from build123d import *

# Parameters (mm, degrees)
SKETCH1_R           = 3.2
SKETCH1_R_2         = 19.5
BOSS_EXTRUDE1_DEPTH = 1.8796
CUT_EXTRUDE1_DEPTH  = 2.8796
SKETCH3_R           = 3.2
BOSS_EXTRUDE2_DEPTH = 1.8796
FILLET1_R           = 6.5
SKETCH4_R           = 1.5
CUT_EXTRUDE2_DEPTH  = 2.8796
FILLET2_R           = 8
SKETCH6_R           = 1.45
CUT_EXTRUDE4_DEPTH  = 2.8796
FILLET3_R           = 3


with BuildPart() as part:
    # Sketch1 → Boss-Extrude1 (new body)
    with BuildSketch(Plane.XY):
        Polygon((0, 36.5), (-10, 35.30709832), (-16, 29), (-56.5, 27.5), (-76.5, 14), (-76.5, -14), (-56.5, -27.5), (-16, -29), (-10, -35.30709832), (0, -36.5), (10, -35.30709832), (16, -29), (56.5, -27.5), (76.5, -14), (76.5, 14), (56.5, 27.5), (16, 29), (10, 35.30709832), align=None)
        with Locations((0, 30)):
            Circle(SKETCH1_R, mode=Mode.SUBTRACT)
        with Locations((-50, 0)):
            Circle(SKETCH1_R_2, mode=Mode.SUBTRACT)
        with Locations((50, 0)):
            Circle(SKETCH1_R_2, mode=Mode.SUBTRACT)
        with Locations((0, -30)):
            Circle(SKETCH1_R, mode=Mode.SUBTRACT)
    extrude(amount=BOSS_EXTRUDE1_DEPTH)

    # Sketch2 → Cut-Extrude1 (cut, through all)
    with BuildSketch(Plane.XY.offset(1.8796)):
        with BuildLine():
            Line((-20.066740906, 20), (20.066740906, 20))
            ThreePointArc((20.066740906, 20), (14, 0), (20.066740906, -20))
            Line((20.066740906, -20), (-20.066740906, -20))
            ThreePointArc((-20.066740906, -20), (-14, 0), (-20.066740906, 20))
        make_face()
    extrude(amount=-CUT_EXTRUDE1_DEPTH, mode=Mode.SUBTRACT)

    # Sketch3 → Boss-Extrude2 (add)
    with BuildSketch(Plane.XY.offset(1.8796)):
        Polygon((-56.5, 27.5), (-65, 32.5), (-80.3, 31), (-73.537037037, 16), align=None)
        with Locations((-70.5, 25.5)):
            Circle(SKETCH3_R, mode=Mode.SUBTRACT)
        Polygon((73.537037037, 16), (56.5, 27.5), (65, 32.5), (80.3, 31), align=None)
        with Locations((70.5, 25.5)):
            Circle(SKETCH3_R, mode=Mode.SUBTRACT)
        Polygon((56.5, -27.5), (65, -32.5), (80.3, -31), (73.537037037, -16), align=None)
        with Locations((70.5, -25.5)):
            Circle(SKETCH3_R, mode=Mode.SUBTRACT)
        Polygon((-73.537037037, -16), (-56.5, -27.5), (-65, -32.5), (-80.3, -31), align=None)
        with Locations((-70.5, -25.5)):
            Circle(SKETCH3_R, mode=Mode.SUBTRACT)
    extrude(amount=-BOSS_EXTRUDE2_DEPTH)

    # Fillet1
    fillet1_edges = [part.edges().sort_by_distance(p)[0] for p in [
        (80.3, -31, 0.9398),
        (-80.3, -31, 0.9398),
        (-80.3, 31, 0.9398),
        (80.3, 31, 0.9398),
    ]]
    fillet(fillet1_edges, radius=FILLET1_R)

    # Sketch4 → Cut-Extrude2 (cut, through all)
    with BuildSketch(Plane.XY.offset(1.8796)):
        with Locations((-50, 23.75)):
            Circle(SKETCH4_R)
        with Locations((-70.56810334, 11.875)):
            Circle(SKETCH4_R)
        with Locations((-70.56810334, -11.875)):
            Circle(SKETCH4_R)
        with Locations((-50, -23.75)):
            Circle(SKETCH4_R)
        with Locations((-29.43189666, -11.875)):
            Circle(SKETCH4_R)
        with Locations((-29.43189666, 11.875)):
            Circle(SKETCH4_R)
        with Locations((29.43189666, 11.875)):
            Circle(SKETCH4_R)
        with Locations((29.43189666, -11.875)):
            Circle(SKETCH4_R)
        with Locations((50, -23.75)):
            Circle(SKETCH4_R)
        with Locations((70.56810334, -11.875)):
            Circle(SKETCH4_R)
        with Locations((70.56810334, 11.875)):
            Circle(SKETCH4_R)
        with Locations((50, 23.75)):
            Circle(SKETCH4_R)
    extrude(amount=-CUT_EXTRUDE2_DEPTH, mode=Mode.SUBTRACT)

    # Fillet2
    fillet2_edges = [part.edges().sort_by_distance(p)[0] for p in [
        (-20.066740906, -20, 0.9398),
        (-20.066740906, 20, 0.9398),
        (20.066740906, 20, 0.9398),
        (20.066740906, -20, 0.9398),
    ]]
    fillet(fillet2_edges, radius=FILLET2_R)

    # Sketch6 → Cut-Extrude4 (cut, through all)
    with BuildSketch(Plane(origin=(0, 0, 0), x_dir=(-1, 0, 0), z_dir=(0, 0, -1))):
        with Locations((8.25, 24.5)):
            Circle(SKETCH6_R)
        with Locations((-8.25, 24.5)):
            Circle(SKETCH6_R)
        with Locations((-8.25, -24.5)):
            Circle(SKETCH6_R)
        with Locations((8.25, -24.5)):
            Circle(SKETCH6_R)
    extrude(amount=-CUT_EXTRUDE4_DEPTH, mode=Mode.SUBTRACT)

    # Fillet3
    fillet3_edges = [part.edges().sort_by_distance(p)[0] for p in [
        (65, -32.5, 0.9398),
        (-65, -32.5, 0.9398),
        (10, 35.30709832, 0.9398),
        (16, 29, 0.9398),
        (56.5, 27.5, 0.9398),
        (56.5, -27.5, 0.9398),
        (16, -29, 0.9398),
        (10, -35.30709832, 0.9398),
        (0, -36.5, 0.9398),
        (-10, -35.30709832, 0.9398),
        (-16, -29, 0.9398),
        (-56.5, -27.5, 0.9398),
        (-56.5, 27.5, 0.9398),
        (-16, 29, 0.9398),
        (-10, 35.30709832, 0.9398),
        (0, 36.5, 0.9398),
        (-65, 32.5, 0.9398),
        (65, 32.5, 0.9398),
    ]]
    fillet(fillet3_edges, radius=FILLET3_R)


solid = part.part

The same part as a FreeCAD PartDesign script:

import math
import FreeCAD as App
import Part
import Sketcher

V = App.Vector


def edges_at(feature, points):
    """Names of the edges that pass closest to the given points."""
    edges = feature.Shape.Edges
    near = lambda p: min(range(len(edges)), key=lambda i: edges[i].distToShape(Part.Vertex(*p))[0])
    return sorted({f"Edge{near(p) + 1}" for p in points})

doc = App.newDocument("Part")
body = doc.addObject("PartDesign::Body", "Body")

# Sketch on XY plane
sketch1 = doc.addObject("Sketcher::SketchObject", "Sketch")
body.addObject(sketch1)
sketch1.AttachmentSupport = (doc.XY_Plane, [""])
sketch1.MapMode = "FlatFace"
sketch1.addGeometry([
    Part.LineSegment(V(0, 36.5, 0), V(-10, 35.307098, 0)),  # 0
    Part.LineSegment(V(-10, 35.307098, 0), V(-16, 29, 0)),  # 1
    Part.LineSegment(V(-16, 29, 0), V(-56.5, 27.5, 0)),  # 2
    Part.LineSegment(V(-56.5, 27.5, 0), V(-76.5, 14, 0)),  # 3
    Part.LineSegment(V(-76.5, 14, 0), V(-76.5, -14, 0)),  # 4
    Part.LineSegment(V(-76.5, -14, 0), V(-56.5, -27.5, 0)),  # 5
    Part.LineSegment(V(-56.5, -27.5, 0), V(-16, -29, 0)),  # 6
    Part.LineSegment(V(-16, -29, 0), V(-10, -35.307098, 0)),  # 7
    Part.LineSegment(V(-10, -35.307098, 0), V(0, -36.5, 0)),  # 8
    Part.LineSegment(V(0, -36.5, 0), V(10, -35.307098, 0)),  # 9
    Part.LineSegment(V(10, -35.307098, 0), V(16, -29, 0)),  # 10
    Part.LineSegment(V(16, -29, 0), V(56.5, -27.5, 0)),  # 11
    Part.LineSegment(V(56.5, -27.5, 0), V(76.5, -14, 0)),  # 12
    Part.LineSegment(V(76.5, -14, 0), V(76.5, 14, 0)),  # 13
    Part.LineSegment(V(76.5, 14, 0), V(56.5, 27.5, 0)),  # 14
    Part.LineSegment(V(56.5, 27.5, 0), V(16, 29, 0)),  # 15
    Part.LineSegment(V(16, 29, 0), V(10, 35.307098, 0)),  # 16
    Part.LineSegment(V(10, 35.307098, 0), V(0, 36.5, 0)),  # 17
    Part.Circle(V(0, -30, 0), V(0, 0, 1), 3.2),  # 18
    Part.Circle(V(-50, 0, 0), V(0, 0, 1), 19.5),  # 19
    Part.Circle(V(50, 0, 0), V(0, 0, 1), 19.5),  # 20
    Part.Circle(V(0, 30, 0), V(0, 0, 1), 3.2),  # 21
], False)
sketch1.addConstraint([
    Sketcher.Constraint("Coincident", 0, 2, 1, 1),
    Sketcher.Constraint("Coincident", 1, 2, 2, 1),
    Sketcher.Constraint("Coincident", 2, 2, 3, 1),
    Sketcher.Constraint("Coincident", 3, 2, 4, 1),
    Sketcher.Constraint("Coincident", 4, 2, 5, 1),
    Sketcher.Constraint("Coincident", 5, 2, 6, 1),
    Sketcher.Constraint("Coincident", 6, 2, 7, 1),
    Sketcher.Constraint("Coincident", 7, 2, 8, 1),
    Sketcher.Constraint("Coincident", 8, 2, 9, 1),
    Sketcher.Constraint("Coincident", 9, 2, 10, 1),
    Sketcher.Constraint("Coincident", 10, 2, 11, 1),
    Sketcher.Constraint("Coincident", 11, 2, 12, 1),
    Sketcher.Constraint("Coincident", 12, 2, 13, 1),
    Sketcher.Constraint("Coincident", 13, 2, 14, 1),
    Sketcher.Constraint("Coincident", 14, 2, 15, 1),
    Sketcher.Constraint("Coincident", 15, 2, 16, 1),
    Sketcher.Constraint("Coincident", 16, 2, 17, 1),
    Sketcher.Constraint("Coincident", 17, 2, 0, 1),
    Sketcher.Constraint("Vertical", 4),
    Sketcher.Constraint("Vertical", 13),
    Sketcher.Constraint("Equal", 19, 20),
    Sketcher.Constraint("Equal", 18, 21),
    Sketcher.Constraint("Symmetric", 19, 3, 20, 3, -1, 1),
    Sketcher.Constraint("Symmetric", 18, 3, 21, 3, -1, 1),
    Sketcher.Constraint("Symmetric", 0, 2, 9, 2, -1, 1),
    Sketcher.Constraint("Symmetric", 1, 2, 10, 2, -1, 1),
    Sketcher.Constraint("Symmetric", 2, 2, 11, 2, -1, 1),
    Sketcher.Constraint("Symmetric", 3, 2, 12, 2, -1, 1),
    Sketcher.Constraint("Symmetric", 5, 2, 14, 2, -1, 1),
    Sketcher.Constraint("Symmetric", 6, 2, 15, 2, -1, 1),
    Sketcher.Constraint("Symmetric", 7, 2, 16, 2, -1, 1),
    Sketcher.Constraint("Symmetric", 8, 2, 17, 2, -1, 1),
    Sketcher.Constraint("Symmetric", 7, 2, 9, 2, -2),
    Sketcher.Constraint("Symmetric", 6, 2, 10, 2, -2),
    Sketcher.Constraint("Symmetric", 5, 2, 11, 2, -2),
    Sketcher.Constraint("PointOnObject", 18, 3, -2),
    Sketcher.Constraint("PointOnObject", 19, 3, -1),
    Sketcher.Constraint("PointOnObject", 8, 2, -2),
    Sketcher.Constraint("Parallel", 5, 14),
    Sketcher.Constraint("Horizontal", 4, 2, 12, 2),
    Sketcher.Constraint("Diameter", 19, 39.0),
    Sketcher.Constraint("Diameter", 18, 6.4),
    Sketcher.Constraint("DistanceY", 4, 2, 4, 1, 28.0),
    Sketcher.Constraint("DistanceY", 18, 3, -1, 1, 30.0),
    Sketcher.Constraint("DistanceX", 19, 3, -1, 1, 50.0),
    Sketcher.Constraint("DistanceX", 0, 2, -1, 1, 10.0),
    Sketcher.Constraint("DistanceX", 1, 2, -1, 1, 16.0),
    Sketcher.Constraint("DistanceY", -1, 1, 1, 2, 29.0),
    Sketcher.Constraint("DistanceX", 3, 2, 2, 2, 20.0),
    Sketcher.Constraint("DistanceY", 5, 2, 2, 2, 55.0),
    Sketcher.Constraint("DistanceY", 8, 2, 5, 2, 9.0),
    Sketcher.Constraint("DistanceX", 2, 2, -1, 1, 56.5),
    Sketcher.Constraint("Distance", 0, 10.070899),
])
pad1 = doc.addObject("PartDesign::Pad", "Pad")
body.addObject(pad1)
pad1.Profile = sketch1
pad1.Length = 1.8796

# Sketch on XY plane
sketch2 = doc.addObject("Sketcher::SketchObject", "Sketch001")
body.addObject(sketch2)
sketch2.AttachmentSupport = (doc.XY_Plane, [""])
sketch2.MapMode = "FlatFace"
sketch2.AttachmentOffset = App.Placement(V(0, 0, 1.8796), App.Rotation())
sketch2.addGeometry([
    Part.LineSegment(V(20.066741, 20, 0), V(-20.066741, 20, 0)),
    Part.ArcOfCircle(Part.Circle(V(-50, 0, 0), V(0, 0, 1), 36), math.radians(-33.748989), math.radians(33.748989)),
    Part.LineSegment(V(-20.066741, -20, 0), V(20.066741, -20, 0)),
    Part.ArcOfCircle(Part.Circle(V(50, 0, 0), V(0, 0, 1), 36), math.radians(146.251011), math.radians(213.748989)),
], False)
sketch2.addConstraint([
    Sketcher.Constraint("Coincident", 0, 2, 1, 2),
    Sketcher.Constraint("Coincident", 1, 1, 2, 1),
    Sketcher.Constraint("Coincident", 2, 2, 3, 2),
    Sketcher.Constraint("Coincident", 3, 1, 0, 1),
    Sketcher.Constraint("Horizontal", 0),
    Sketcher.Constraint("Horizontal", 2),
    Sketcher.Constraint("Equal", 1, 3),
    Sketcher.Constraint("Symmetric", 1, 3, 3, 3, -1, 1),
    Sketcher.Constraint("Symmetric", 0, 2, 1, 1, -1),
    Sketcher.Constraint("Radius", 1, 36.0),
    Sketcher.Constraint("DistanceX", 1, 3, -1, 1, 50.0),
    Sketcher.Constraint("DistanceY", -1, 1, 0, 2, 20.0),
])
pocket1 = doc.addObject("PartDesign::Pocket", "Pocket")
body.addObject(pocket1)
pocket1.Profile = sketch2
pocket1.Type = "ThroughAll"

# Sketch on XY plane
sketch3 = doc.addObject("Sketcher::SketchObject", "Sketch002")
body.addObject(sketch3)
sketch3.AttachmentSupport = (doc.XY_Plane, [""])
sketch3.MapMode = "FlatFace"
sketch3.AttachmentOffset = App.Placement(V(0, 0, 1.8796), App.Rotation())
sketch3.addGeometry([
    Part.LineSegment(V(-56.5, 27.5, 0), V(-65, 32.5, 0)),  # 0
    Part.LineSegment(V(-65, 32.5, 0), V(-80.3, 31, 0)),  # 1
    Part.LineSegment(V(-80.3, 31, 0), V(-73.537037, 16, 0)),  # 2
    Part.LineSegment(V(-73.537037, 16, 0), V(-56.5, 27.5, 0)),  # 3
    Part.Circle(V(-70.5, 25.5, 0), V(0, 0, 1), 3.2),  # 4
    Part.LineSegment(V(56.5, 27.5, 0), V(73.537037, 16, 0)),  # 5
    Part.LineSegment(V(73.537037, 16, 0), V(80.3, 31, 0)),  # 6
    Part.LineSegment(V(80.3, 31, 0), V(65, 32.5, 0)),  # 7
    Part.LineSegment(V(65, 32.5, 0), V(56.5, 27.5, 0)),  # 8
    Part.Circle(V(70.5, 25.5, 0), V(0, 0, 1), 3.2),  # 9
    Part.LineSegment(V(56.5, -27.5, 0), V(65, -32.5, 0)),  # 10
    Part.LineSegment(V(65, -32.5, 0), V(80.3, -31, 0)),  # 11
    Part.LineSegment(V(80.3, -31, 0), V(73.537037, -16, 0)),  # 12
    Part.LineSegment(V(73.537037, -16, 0), V(56.5, -27.5, 0)),  # 13
    Part.Circle(V(70.5, -25.5, 0), V(0, 0, 1), 3.2),  # 14
    Part.LineSegment(V(-56.5, -27.5, 0), V(-73.537037, -16, 0)),  # 15
    Part.LineSegment(V(-73.537037, -16, 0), V(-80.3, -31, 0)),  # 16
    Part.LineSegment(V(-80.3, -31, 0), V(-65, -32.5, 0)),  # 17
    Part.LineSegment(V(-65, -32.5, 0), V(-56.5, -27.5, 0)),  # 18
    Part.Circle(V(-70.5, -25.5, 0), V(0, 0, 1), 3.2),  # 19
], False)
sketch3.addConstraint([
    Sketcher.Constraint("Coincident", 0, 2, 1, 1),
    Sketcher.Constraint("Coincident", 1, 2, 2, 1),
    Sketcher.Constraint("Coincident", 2, 2, 3, 1),
    Sketcher.Constraint("Coincident", 3, 2, 0, 1),
    Sketcher.Constraint("Coincident", 5, 2, 6, 1),
    Sketcher.Constraint("Coincident", 6, 2, 7, 1),
    Sketcher.Constraint("Coincident", 7, 2, 8, 1),
    Sketcher.Constraint("Coincident", 8, 2, 5, 1),
    Sketcher.Constraint("Coincident", 10, 2, 11, 1),
    Sketcher.Constraint("Coincident", 11, 2, 12, 1),
    Sketcher.Constraint("Coincident", 12, 2, 13, 1),
    Sketcher.Constraint("Coincident", 13, 2, 10, 1),
    Sketcher.Constraint("Coincident", 15, 2, 16, 1),
    Sketcher.Constraint("Coincident", 16, 2, 17, 1),
    Sketcher.Constraint("Coincident", 17, 2, 18, 1),
    Sketcher.Constraint("Coincident", 18, 2, 15, 1),
    Sketcher.Constraint("Equal", 4, 9),
    Sketcher.Constraint("Equal", 9, 14),
    Sketcher.Constraint("Equal", 14, 19),
    Sketcher.Constraint("Symmetric", 4, 3, 14, 3, -1, 1),
    Sketcher.Constraint("Symmetric", 9, 3, 19, 3, -1, 1),
    Sketcher.Constraint("Symmetric", 0, 2, 10, 2, -1, 1),
    Sketcher.Constraint("Symmetric", 1, 2, 11, 2, -1, 1),
    Sketcher.Constraint("Symmetric", 2, 2, 12, 2, -1, 1),
    Sketcher.Constraint("Symmetric", 3, 2, 13, 2, -1, 1),
    Sketcher.Constraint("Symmetric", 5, 2, 15, 2, -1, 1),
    Sketcher.Constraint("Symmetric", 6, 2, 16, 2, -1, 1),
    Sketcher.Constraint("Symmetric", 7, 2, 17, 2, -1, 1),
    Sketcher.Constraint("Symmetric", 8, 2, 18, 2, -1, 1),
    Sketcher.Constraint("Symmetric", 4, 3, 9, 3, -2),
    Sketcher.Constraint("Symmetric", 2, 2, 5, 2, -2),
    Sketcher.Constraint("Symmetric", 1, 2, 6, 2, -2),
    Sketcher.Constraint("Symmetric", 0, 2, 7, 2, -2),
    Sketcher.Constraint("Symmetric", 3, 2, 8, 2, -2),
    Sketcher.Constraint("Diameter", 4, 6.4),
    Sketcher.Constraint("DistanceX", 0, 2, -1, 1, 65.0),
    Sketcher.Constraint("DistanceY", -1, 1, 1, 2, 31.0),
    Sketcher.Constraint("DistanceY", -1, 1, 2, 2, 16.0),
    Sketcher.Constraint("DistanceX", 4, 3, 9, 3, 141.0),
    Sketcher.Constraint("DistanceY", 14, 3, 9, 3, 51.0),
    Sketcher.Constraint("DistanceY", 4, 3, 0, 2, 7.0),
    Sketcher.Constraint("DistanceY", 3, 2, 0, 2, 5.0),
    Sketcher.Constraint("DistanceX", 4, 3, 3, 2, 14.0),
    Sketcher.Constraint("DistanceX", 1, 2, -1, 1, 80.3),
    Sketcher.Constraint("Distance", 2, 16.454108),
])
pad2 = doc.addObject("PartDesign::Pad", "Pad001")
body.addObject(pad2)
pad2.Profile = sketch3
pad2.Length = 1.8796
pad2.Reversed = True
doc.recompute()

fillet = doc.addObject("PartDesign::Fillet", "Fillet")
body.addObject(fillet)
fillet.Base = (pad2, edges_at(pad2, [
    (80.3, -31, 0.94),
    (-80.3, -31, 0.94),
    (-80.3, 31, 0.94),
    (80.3, 31, 0.94),
]))
fillet.Radius = 6.5

# Sketch on XY plane
sketch4 = doc.addObject("Sketcher::SketchObject", "Sketch003")
body.addObject(sketch4)
sketch4.AttachmentSupport = (doc.XY_Plane, [""])
sketch4.MapMode = "FlatFace"
sketch4.AttachmentOffset = App.Placement(V(0, 0, 1.8796), App.Rotation())
sketch4.addGeometry([
    Part.Circle(V(-50, 23.75, 0), V(0, 0, 1), 1.5),  # 0
    Part.Circle(V(-70.568103, 11.875, 0), V(0, 0, 1), 1.5),  # 1
    Part.Circle(V(-70.568103, -11.875, 0), V(0, 0, 1), 1.5),  # 2
    Part.Circle(V(-50, -23.75, 0), V(0, 0, 1), 1.5),  # 3
    Part.Circle(V(-29.431897, -11.875, 0), V(0, 0, 1), 1.5),  # 4
    Part.Circle(V(-29.431897, 11.875, 0), V(0, 0, 1), 1.5),  # 5
    Part.Circle(V(29.431897, 11.875, 0), V(0, 0, 1), 1.5),  # 6
    Part.Circle(V(29.431897, -11.875, 0), V(0, 0, 1), 1.5),  # 7
    Part.Circle(V(50, -23.75, 0), V(0, 0, 1), 1.5),  # 8
    Part.Circle(V(70.568103, -11.875, 0), V(0, 0, 1), 1.5),  # 9
    Part.Circle(V(70.568103, 11.875, 0), V(0, 0, 1), 1.5),  # 10
    Part.Circle(V(50, 23.75, 0), V(0, 0, 1), 1.5),  # 11
], False)
sketch4.addConstraint([
    Sketcher.Constraint("Equal", 0, 1),
    Sketcher.Constraint("Equal", 1, 2),
    Sketcher.Constraint("Equal", 2, 3),
    Sketcher.Constraint("Equal", 3, 4),
    Sketcher.Constraint("Equal", 4, 5),
    Sketcher.Constraint("Equal", 5, 6),
    Sketcher.Constraint("Equal", 6, 7),
    Sketcher.Constraint("Equal", 7, 8),
    Sketcher.Constraint("Equal", 8, 9),
    Sketcher.Constraint("Equal", 9, 10),
    Sketcher.Constraint("Equal", 10, 11),
    Sketcher.Constraint("Symmetric", 4, 3, 6, 3, -1, 1),
    Sketcher.Constraint("Symmetric", 5, 3, 7, 3, -1, 1),
    Sketcher.Constraint("Symmetric", 0, 3, 8, 3, -1, 1),
    Sketcher.Constraint("Symmetric", 1, 3, 9, 3, -1, 1),
    Sketcher.Constraint("Symmetric", 2, 3, 10, 3, -1, 1),
    Sketcher.Constraint("Symmetric", 3, 3, 11, 3, -1, 1),
    Sketcher.Constraint("Symmetric", 5, 3, 6, 3, -2),
    Sketcher.Constraint("Symmetric", 3, 3, 8, 3, -2),
    Sketcher.Constraint("Symmetric", 2, 3, 9, 3, -2),
    Sketcher.Constraint("Horizontal", 2, 3, 4, 3),
    Sketcher.Constraint("Diameter", 0, 3.0),
    Sketcher.Constraint("DistanceX", 0, 3, -1, 1, 50.0),
    Sketcher.Constraint("DistanceX", 1, 3, 6, 3, 100.0),
    Sketcher.Constraint("DistanceY", 3, 3, 0, 3, 47.5),
    Sketcher.Constraint("DistanceY", 2, 3, 1, 3, 23.75),
    Sketcher.Constraint("DistanceX", 1, 3, -1, 1, 70.568103),
])
pocket2 = doc.addObject("PartDesign::Pocket", "Pocket001")
body.addObject(pocket2)
pocket2.Profile = sketch4
pocket2.Type = "ThroughAll"
doc.recompute()

fillet2 = doc.addObject("PartDesign::Fillet", "Fillet001")
body.addObject(fillet2)
fillet2.Base = (pocket2, edges_at(pocket2, [
    (-20.067, -20, 0.94),
    (-20.067, 20, 0.94),
    (20.067, 20, 0.94),
    (20.067, -20, 0.94),
]))
fillet2.Radius = 8

# Sketch on XY plane
sketch5 = doc.addObject("Sketcher::SketchObject", "Sketch004")
body.addObject(sketch5)
sketch5.AttachmentSupport = (doc.XY_Plane, [""])
sketch5.MapMode = "FlatFace"
sketch5.addGeometry([
    Part.Circle(V(-8.25, 24.5, 0), V(0, 0, 1), 1.45),
    Part.Circle(V(8.25, 24.5, 0), V(0, 0, 1), 1.45),
    Part.Circle(V(8.25, -24.5, 0), V(0, 0, 1), 1.45),
    Part.Circle(V(-8.25, -24.5, 0), V(0, 0, 1), 1.45),
], False)
sketch5.addConstraint([
    Sketcher.Constraint("Equal", 0, 1),
    Sketcher.Constraint("Equal", 1, 2),
    Sketcher.Constraint("Equal", 2, 3),
    Sketcher.Constraint("Symmetric", 0, 3, 2, 3, -1, 1),
    Sketcher.Constraint("Symmetric", 1, 3, 3, 3, -1, 1),
    Sketcher.Constraint("Symmetric", 0, 3, 1, 3, -2),
    Sketcher.Constraint("Diameter", 0, 2.9),
    Sketcher.Constraint("DistanceY", 2, 3, 1, 3, 49.0),
    Sketcher.Constraint("DistanceX", 0, 3, 1, 3, 16.5),
])
pocket3 = doc.addObject("PartDesign::Pocket", "Pocket002")
body.addObject(pocket3)
pocket3.Profile = sketch5
pocket3.Type = "ThroughAll"
pocket3.Reversed = True
doc.recompute()

fillet3 = doc.addObject("PartDesign::Fillet", "Fillet002")
body.addObject(fillet3)
fillet3.Base = (pocket3, edges_at(pocket3, [
    (65, -32.5, 0.94),
    (-65, -32.5, 0.94),
    (10, 35.307, 0.94),
    (16, 29, 0.94),
    (56.5, 27.5, 0.94),
    (56.5, -27.5, 0.94),
    (16, -29, 0.94),
    (10, -35.307, 0.94),
    (0, -36.5, 0.94),
    (-10, -35.307, 0.94),
    (-16, -29, 0.94),
    (-56.5, -27.5, 0.94),
    (-56.5, 27.5, 0.94),
    (-16, 29, 0.94),
    (-10, 35.307, 0.94),
    (0, 36.5, 0.94),
    (-65, 32.5, 0.94),
    (65, 32.5, 0.94),
]))
fillet3.Radius = 3

doc.recompute()
